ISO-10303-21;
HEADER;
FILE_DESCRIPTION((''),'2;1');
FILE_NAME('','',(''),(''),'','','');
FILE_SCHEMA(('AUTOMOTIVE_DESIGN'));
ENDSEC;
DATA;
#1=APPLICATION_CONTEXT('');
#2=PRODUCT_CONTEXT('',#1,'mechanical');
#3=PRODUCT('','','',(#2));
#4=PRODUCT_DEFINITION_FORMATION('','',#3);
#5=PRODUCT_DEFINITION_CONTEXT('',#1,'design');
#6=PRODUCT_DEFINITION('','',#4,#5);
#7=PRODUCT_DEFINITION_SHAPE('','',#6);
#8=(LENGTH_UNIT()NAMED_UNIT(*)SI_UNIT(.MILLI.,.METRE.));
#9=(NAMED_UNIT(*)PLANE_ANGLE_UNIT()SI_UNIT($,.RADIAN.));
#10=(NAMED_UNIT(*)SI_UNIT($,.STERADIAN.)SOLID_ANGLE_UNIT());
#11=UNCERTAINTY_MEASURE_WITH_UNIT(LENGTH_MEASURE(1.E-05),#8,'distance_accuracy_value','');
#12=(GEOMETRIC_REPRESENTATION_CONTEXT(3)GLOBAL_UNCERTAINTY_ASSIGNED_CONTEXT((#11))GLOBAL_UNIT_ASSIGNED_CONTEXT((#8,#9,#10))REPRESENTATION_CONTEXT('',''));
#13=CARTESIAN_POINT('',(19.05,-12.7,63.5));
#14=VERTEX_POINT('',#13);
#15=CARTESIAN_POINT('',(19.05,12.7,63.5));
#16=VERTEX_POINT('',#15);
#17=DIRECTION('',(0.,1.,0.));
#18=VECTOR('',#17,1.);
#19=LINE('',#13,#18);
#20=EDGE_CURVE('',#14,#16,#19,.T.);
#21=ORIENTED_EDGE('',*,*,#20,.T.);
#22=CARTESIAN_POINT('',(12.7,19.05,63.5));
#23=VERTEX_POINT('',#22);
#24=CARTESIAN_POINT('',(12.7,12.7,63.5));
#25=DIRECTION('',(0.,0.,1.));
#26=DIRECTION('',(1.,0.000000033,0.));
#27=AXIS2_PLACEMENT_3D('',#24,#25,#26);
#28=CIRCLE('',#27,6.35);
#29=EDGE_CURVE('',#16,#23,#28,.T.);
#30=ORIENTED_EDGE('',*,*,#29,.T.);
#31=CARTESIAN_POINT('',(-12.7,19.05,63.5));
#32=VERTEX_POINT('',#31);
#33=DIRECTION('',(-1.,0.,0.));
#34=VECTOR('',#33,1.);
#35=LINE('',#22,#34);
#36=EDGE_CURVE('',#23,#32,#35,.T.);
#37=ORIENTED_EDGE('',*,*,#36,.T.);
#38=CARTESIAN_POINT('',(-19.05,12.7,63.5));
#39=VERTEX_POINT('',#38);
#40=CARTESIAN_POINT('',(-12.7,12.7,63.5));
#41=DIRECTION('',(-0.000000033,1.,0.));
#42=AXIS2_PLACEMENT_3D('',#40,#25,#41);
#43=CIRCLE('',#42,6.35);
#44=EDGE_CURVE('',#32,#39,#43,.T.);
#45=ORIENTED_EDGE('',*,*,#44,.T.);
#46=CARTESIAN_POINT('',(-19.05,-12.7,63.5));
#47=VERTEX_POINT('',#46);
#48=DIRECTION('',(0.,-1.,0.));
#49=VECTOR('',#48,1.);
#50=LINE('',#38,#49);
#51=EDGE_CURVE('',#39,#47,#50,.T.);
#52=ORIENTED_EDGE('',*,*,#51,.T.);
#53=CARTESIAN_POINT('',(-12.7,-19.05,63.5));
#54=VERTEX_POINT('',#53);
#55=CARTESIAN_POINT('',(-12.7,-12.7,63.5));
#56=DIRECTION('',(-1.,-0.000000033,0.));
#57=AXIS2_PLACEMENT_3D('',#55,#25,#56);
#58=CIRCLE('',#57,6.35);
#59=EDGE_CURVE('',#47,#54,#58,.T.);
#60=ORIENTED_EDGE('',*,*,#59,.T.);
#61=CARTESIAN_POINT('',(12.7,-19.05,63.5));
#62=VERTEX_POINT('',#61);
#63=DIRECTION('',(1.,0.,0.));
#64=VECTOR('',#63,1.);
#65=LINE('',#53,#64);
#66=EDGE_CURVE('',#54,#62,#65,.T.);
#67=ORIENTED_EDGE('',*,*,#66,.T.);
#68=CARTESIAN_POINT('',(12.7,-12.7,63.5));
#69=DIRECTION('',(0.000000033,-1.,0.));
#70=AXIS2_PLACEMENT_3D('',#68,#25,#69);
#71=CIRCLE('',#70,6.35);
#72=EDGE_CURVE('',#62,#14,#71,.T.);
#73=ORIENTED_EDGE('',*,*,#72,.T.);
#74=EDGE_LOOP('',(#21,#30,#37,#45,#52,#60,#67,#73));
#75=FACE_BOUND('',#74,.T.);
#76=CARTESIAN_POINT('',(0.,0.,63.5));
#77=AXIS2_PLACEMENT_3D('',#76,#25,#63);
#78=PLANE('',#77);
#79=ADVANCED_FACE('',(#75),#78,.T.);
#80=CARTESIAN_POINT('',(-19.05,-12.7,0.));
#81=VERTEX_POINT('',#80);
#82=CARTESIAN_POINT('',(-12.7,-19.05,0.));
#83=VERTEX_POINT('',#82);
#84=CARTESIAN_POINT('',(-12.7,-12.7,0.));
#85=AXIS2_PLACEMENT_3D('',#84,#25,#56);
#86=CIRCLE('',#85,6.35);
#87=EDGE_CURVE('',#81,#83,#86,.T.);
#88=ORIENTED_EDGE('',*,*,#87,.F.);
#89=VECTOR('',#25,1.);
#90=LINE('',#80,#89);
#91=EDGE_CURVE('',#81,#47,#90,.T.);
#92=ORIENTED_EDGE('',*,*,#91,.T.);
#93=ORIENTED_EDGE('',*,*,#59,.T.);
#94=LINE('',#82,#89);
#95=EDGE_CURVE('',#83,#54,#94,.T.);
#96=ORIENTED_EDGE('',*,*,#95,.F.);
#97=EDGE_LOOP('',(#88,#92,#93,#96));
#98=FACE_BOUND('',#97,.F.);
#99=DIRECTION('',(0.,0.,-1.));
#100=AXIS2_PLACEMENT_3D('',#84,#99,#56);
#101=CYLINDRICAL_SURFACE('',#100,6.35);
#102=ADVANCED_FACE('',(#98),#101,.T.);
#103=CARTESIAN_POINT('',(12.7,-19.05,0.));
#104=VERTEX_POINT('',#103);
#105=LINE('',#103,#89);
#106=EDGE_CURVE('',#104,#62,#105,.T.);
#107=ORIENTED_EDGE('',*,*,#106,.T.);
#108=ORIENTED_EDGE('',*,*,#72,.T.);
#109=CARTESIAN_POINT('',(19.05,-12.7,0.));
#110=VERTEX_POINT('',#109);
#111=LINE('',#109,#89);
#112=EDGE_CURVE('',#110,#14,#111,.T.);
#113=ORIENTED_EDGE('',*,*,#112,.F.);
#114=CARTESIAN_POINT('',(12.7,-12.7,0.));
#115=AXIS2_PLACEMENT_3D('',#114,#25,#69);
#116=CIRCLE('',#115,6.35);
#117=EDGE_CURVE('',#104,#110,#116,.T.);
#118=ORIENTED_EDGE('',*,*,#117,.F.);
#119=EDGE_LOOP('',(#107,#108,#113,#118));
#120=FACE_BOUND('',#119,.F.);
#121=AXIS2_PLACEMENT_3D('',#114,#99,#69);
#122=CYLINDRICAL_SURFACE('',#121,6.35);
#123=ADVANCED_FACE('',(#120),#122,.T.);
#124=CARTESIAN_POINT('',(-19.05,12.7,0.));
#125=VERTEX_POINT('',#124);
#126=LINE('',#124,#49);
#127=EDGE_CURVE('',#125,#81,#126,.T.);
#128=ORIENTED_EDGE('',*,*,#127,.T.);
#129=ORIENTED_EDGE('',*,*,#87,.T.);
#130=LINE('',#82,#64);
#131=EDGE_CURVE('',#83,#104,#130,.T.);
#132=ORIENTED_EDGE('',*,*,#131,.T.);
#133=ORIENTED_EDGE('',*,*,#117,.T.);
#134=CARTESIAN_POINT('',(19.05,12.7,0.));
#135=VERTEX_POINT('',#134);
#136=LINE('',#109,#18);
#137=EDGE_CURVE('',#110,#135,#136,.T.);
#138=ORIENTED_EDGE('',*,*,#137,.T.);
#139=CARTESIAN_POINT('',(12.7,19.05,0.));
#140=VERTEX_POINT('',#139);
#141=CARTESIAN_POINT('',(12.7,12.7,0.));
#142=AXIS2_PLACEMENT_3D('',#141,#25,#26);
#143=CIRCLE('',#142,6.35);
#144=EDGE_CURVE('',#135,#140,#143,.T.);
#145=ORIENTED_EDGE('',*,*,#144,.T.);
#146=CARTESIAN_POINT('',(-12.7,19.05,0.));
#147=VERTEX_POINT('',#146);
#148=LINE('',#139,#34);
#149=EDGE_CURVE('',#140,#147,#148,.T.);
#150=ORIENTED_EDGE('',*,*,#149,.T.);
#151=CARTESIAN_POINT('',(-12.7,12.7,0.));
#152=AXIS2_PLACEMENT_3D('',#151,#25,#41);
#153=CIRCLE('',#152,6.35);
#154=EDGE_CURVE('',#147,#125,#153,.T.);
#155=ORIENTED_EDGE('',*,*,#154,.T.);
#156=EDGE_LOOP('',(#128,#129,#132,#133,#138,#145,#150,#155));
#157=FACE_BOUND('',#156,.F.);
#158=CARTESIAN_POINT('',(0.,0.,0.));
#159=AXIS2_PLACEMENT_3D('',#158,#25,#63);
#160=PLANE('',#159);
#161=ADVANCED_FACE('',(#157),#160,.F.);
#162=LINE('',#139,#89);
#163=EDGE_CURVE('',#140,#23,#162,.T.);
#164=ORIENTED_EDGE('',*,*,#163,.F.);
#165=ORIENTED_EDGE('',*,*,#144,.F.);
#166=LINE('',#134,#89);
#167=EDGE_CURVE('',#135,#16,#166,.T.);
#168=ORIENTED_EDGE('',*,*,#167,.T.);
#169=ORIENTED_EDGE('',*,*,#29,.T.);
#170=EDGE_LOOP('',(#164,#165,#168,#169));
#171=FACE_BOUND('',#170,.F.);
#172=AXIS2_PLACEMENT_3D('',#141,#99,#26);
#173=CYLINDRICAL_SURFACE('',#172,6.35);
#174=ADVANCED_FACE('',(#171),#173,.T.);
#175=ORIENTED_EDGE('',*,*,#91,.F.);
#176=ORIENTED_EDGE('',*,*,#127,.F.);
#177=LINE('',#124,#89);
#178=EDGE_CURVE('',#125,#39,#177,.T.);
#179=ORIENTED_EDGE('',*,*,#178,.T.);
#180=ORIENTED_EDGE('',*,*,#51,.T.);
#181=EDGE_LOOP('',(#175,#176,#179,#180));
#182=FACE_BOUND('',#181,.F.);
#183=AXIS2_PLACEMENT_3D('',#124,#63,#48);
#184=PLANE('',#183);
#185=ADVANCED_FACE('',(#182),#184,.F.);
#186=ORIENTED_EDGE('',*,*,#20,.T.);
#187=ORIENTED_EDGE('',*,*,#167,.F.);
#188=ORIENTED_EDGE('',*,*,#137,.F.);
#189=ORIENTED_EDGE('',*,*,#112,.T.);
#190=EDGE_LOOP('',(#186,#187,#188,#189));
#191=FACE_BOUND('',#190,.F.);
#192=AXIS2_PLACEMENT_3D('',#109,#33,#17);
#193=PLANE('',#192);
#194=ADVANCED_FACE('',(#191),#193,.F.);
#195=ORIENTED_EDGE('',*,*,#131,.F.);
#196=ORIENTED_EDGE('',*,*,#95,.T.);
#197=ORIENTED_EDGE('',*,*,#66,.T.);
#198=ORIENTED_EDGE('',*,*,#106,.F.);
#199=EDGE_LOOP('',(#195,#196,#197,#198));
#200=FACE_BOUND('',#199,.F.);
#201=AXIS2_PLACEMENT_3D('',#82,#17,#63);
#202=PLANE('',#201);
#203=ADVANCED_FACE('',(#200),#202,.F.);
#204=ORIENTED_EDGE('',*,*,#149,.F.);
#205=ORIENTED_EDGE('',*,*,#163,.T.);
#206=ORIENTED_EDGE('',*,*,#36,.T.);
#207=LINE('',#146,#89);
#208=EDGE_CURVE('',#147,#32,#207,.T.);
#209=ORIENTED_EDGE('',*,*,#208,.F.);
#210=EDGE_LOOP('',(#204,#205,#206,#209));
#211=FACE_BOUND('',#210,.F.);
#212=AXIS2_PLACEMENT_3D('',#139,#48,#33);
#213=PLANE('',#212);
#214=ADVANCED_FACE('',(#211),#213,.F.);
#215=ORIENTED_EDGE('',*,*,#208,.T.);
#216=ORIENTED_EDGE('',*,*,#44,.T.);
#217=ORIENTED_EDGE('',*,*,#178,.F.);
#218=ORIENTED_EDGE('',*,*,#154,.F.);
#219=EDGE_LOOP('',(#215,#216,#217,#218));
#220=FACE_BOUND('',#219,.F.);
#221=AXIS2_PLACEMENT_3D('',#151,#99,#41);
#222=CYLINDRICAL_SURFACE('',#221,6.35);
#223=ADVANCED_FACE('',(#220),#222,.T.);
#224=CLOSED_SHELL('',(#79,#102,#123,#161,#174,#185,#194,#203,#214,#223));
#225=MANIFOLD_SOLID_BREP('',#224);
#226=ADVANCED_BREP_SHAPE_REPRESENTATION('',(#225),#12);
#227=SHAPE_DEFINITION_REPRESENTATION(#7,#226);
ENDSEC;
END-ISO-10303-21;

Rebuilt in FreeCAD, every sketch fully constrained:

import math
import FreeCAD as App
import Part
import Sketcher
Q = App.Units.Quantity

doc = App.newDocument("Part")
body = doc.addObject("PartDesign::Body", "Body")

# Sketch on XY plane
sketch1 = body.newObject("Sketcher::SketchObject", "Sketch")
sketch1.AttachmentSupport = (doc.getObject("XY_Plane"), [""])
sketch1.MapMode = "FlatFace"
sketch1.addGeometry([
    Part.ArcOfCircle(Part.Circle(App.Vector(13, 13, 0), App.Vector(0, 0, 1), 6), math.radians(0), math.radians(90)),  # 0
    Part.LineSegment(App.Vector(13, 19, 0), App.Vector(-13, 19, 0)),  # 1
    Part.ArcOfCircle(Part.Circle(App.Vector(-13, 13, 0), App.Vector(0, 0, 1), 6), math.radians(90), math.radians(180)),  # 2
    Part.LineSegment(App.Vector(-19, 13, 0), App.Vector(-19, -13, 0)),  # 3
    Part.ArcOfCircle(Part.Circle(App.Vector(-13, -13, 0), App.Vector(0, 0, 1), 6), math.radians(-180), math.radians(-90)),  # 4
    Part.LineSegment(App.Vector(-13, -19, 0), App.Vector(13, -19, 0)),  # 5
    Part.ArcOfCircle(Part.Circle(App.Vector(13, -13, 0), App.Vector(0, 0, 1), 6), math.radians(-90), math.radians(0)),  # 6
    Part.LineSegment(App.Vector(19, -13, 0), App.Vector(19, 13, 0)),  # 7
], False)
sketch1.addConstraint([
    Sketcher.Constraint("Tangent", 0, 2, 1, 1),
    Sketcher.Constraint("Tangent", 1, 2, 2, 1),
    Sketcher.Constraint("Tangent", 2, 2, 3, 1),
    Sketcher.Constraint("Tangent", 3, 2, 4, 1),
    Sketcher.Constraint("Tangent", 4, 2, 5, 1),
    Sketcher.Constraint("Tangent", 5, 2, 6, 1),
    Sketcher.Constraint("Tangent", 6, 2, 7, 1),
    Sketcher.Constraint("Tangent", 7, 2, 0, 1),
    Sketcher.Constraint("Horizontal", 1),
    Sketcher.Constraint("Vertical", 3),
    Sketcher.Constraint("Horizontal", 5),
    Sketcher.Constraint("Vertical", 7),
    Sketcher.Constraint("Equal", 0, 2),
    Sketcher.Constraint("Equal", 2, 4),
    Sketcher.Constraint("Equal", 4, 6),
    Sketcher.Constraint("Symmetric", 0, 3, 4, 3, -1, 1),
    Sketcher.Constraint("Equal", 5, 3),
    Sketcher.Constraint("DistanceX", 1, 2, 1, 1, Q("1 in")),
    Sketcher.Constraint("Radius", 0, Q("0.25 in")),
])
pad1 = body.newObject("PartDesign::Pad", "Pad")
pad1.Profile = sketch1
pad1.Length = Q("2.5 in")
body2 = doc.addObject("PartDesign::Body", "Body001")

# Sketch on YZ plane
sketch2 = body2.newObject("Sketcher::SketchObject", "Sketch001")
sketch2.AttachmentSupport = (doc.getObject("YZ_Plane001"), [""])
sketch2.MapMode = "FlatFace"
sketch2.addGeometry([
    Part.LineSegment(App.Vector(-199, 118, 0), App.Vector(-199, -73, 0)),
    Part.LineSegment(App.Vector(-199, -73, 0), App.Vector(-186, -73, 0)),
    Part.LineSegment(App.Vector(-186, -73, 0), App.Vector(-186, 118, 0)),
    Part.LineSegment(App.Vector(-186, 118, 0), App.Vector(-199, 118, 0)),
], False)
sketch2.addConstraint([
    Sketcher.Constraint("Coincident", 0, 2, 1, 1),
    Sketcher.Constraint("Coincident", 1, 2, 2, 1),
    Sketcher.Constraint("Coincident", 2, 2, 3, 1),
    Sketcher.Constraint("Coincident", 3, 2, 0, 1),
    Sketcher.Constraint("Vertical", 0),
    Sketcher.Constraint("Horizontal", 1),
    Sketcher.Constraint("Vertical", 2),
    Sketcher.Constraint("Horizontal", 3),
    Sketcher.Constraint("DistanceX", 1, 1, 1, 2, Q("0.5 in")),
    Sketcher.Constraint("DistanceY", 0, 2, 0, 1, Q("7.5 in")),
    Sketcher.Constraint("DistanceX", 0, 2, -1, 1, 198.900282),
    Sketcher.Constraint("DistanceY", 0, 2, -1, 1, 72.648935),
])
pad2 = body2.newObject("PartDesign::Pad", "Pad001")
pad2.Profile = sketch2
pad2.Length = Q("0.01 in")
body3 = doc.addObject("PartDesign::Body", "Body002")

# Sketch on YZ plane
sketch3 = body3.newObject("Sketcher::SketchObject", "Sketch002")
sketch3.AttachmentSupport = (doc.getObject("YZ_Plane002"), [""])
sketch3.MapMode = "FlatFace"
sketch3.addGeometry([
    Part.LineSegment(App.Vector(170, 120, 0), App.Vector(170, -70, 0)),
    Part.LineSegment(App.Vector(170, -70, 0), App.Vector(182, -70, 0)),
    Part.LineSegment(App.Vector(182, -70, 0), App.Vector(182, 120, 0)),
    Part.LineSegment(App.Vector(182, 120, 0), App.Vector(170, 120, 0)),
], False)
sketch3.addConstraint([
    Sketcher.Constraint("Coincident", 0, 2, 1, 1),
    Sketcher.Constraint("Coincident", 1, 2, 2, 1),
    Sketcher.Constraint("Coincident", 2, 2, 3, 1),
    Sketcher.Constraint("Coincident", 3, 2, 0, 1),
    Sketcher.Constraint("Vertical", 0),
    Sketcher.Constraint("Horizontal", 1),
    Sketcher.Constraint("Vertical", 2),
    Sketcher.Constraint("Horizontal", 3),
    Sketcher.Constraint("DistanceX", 1, 1, 1, 2, Q("0.5 in")),
    Sketcher.Constraint("DistanceY", 0, 2, 0, 1, Q("7.5 in")),
    Sketcher.Constraint("DistanceX", -1, 1, 0, 2, 169.514179),
    Sketcher.Constraint("DistanceY", 0, 2, -1, 1, 70.472185),
])
pad3 = body3.newObject("PartDesign::Pad", "Pad002")
pad3.Profile = sketch3
pad3.Length = Q("0.01 in")
body2.Visibility = False
body3.Visibility = False

doc.recompute()
